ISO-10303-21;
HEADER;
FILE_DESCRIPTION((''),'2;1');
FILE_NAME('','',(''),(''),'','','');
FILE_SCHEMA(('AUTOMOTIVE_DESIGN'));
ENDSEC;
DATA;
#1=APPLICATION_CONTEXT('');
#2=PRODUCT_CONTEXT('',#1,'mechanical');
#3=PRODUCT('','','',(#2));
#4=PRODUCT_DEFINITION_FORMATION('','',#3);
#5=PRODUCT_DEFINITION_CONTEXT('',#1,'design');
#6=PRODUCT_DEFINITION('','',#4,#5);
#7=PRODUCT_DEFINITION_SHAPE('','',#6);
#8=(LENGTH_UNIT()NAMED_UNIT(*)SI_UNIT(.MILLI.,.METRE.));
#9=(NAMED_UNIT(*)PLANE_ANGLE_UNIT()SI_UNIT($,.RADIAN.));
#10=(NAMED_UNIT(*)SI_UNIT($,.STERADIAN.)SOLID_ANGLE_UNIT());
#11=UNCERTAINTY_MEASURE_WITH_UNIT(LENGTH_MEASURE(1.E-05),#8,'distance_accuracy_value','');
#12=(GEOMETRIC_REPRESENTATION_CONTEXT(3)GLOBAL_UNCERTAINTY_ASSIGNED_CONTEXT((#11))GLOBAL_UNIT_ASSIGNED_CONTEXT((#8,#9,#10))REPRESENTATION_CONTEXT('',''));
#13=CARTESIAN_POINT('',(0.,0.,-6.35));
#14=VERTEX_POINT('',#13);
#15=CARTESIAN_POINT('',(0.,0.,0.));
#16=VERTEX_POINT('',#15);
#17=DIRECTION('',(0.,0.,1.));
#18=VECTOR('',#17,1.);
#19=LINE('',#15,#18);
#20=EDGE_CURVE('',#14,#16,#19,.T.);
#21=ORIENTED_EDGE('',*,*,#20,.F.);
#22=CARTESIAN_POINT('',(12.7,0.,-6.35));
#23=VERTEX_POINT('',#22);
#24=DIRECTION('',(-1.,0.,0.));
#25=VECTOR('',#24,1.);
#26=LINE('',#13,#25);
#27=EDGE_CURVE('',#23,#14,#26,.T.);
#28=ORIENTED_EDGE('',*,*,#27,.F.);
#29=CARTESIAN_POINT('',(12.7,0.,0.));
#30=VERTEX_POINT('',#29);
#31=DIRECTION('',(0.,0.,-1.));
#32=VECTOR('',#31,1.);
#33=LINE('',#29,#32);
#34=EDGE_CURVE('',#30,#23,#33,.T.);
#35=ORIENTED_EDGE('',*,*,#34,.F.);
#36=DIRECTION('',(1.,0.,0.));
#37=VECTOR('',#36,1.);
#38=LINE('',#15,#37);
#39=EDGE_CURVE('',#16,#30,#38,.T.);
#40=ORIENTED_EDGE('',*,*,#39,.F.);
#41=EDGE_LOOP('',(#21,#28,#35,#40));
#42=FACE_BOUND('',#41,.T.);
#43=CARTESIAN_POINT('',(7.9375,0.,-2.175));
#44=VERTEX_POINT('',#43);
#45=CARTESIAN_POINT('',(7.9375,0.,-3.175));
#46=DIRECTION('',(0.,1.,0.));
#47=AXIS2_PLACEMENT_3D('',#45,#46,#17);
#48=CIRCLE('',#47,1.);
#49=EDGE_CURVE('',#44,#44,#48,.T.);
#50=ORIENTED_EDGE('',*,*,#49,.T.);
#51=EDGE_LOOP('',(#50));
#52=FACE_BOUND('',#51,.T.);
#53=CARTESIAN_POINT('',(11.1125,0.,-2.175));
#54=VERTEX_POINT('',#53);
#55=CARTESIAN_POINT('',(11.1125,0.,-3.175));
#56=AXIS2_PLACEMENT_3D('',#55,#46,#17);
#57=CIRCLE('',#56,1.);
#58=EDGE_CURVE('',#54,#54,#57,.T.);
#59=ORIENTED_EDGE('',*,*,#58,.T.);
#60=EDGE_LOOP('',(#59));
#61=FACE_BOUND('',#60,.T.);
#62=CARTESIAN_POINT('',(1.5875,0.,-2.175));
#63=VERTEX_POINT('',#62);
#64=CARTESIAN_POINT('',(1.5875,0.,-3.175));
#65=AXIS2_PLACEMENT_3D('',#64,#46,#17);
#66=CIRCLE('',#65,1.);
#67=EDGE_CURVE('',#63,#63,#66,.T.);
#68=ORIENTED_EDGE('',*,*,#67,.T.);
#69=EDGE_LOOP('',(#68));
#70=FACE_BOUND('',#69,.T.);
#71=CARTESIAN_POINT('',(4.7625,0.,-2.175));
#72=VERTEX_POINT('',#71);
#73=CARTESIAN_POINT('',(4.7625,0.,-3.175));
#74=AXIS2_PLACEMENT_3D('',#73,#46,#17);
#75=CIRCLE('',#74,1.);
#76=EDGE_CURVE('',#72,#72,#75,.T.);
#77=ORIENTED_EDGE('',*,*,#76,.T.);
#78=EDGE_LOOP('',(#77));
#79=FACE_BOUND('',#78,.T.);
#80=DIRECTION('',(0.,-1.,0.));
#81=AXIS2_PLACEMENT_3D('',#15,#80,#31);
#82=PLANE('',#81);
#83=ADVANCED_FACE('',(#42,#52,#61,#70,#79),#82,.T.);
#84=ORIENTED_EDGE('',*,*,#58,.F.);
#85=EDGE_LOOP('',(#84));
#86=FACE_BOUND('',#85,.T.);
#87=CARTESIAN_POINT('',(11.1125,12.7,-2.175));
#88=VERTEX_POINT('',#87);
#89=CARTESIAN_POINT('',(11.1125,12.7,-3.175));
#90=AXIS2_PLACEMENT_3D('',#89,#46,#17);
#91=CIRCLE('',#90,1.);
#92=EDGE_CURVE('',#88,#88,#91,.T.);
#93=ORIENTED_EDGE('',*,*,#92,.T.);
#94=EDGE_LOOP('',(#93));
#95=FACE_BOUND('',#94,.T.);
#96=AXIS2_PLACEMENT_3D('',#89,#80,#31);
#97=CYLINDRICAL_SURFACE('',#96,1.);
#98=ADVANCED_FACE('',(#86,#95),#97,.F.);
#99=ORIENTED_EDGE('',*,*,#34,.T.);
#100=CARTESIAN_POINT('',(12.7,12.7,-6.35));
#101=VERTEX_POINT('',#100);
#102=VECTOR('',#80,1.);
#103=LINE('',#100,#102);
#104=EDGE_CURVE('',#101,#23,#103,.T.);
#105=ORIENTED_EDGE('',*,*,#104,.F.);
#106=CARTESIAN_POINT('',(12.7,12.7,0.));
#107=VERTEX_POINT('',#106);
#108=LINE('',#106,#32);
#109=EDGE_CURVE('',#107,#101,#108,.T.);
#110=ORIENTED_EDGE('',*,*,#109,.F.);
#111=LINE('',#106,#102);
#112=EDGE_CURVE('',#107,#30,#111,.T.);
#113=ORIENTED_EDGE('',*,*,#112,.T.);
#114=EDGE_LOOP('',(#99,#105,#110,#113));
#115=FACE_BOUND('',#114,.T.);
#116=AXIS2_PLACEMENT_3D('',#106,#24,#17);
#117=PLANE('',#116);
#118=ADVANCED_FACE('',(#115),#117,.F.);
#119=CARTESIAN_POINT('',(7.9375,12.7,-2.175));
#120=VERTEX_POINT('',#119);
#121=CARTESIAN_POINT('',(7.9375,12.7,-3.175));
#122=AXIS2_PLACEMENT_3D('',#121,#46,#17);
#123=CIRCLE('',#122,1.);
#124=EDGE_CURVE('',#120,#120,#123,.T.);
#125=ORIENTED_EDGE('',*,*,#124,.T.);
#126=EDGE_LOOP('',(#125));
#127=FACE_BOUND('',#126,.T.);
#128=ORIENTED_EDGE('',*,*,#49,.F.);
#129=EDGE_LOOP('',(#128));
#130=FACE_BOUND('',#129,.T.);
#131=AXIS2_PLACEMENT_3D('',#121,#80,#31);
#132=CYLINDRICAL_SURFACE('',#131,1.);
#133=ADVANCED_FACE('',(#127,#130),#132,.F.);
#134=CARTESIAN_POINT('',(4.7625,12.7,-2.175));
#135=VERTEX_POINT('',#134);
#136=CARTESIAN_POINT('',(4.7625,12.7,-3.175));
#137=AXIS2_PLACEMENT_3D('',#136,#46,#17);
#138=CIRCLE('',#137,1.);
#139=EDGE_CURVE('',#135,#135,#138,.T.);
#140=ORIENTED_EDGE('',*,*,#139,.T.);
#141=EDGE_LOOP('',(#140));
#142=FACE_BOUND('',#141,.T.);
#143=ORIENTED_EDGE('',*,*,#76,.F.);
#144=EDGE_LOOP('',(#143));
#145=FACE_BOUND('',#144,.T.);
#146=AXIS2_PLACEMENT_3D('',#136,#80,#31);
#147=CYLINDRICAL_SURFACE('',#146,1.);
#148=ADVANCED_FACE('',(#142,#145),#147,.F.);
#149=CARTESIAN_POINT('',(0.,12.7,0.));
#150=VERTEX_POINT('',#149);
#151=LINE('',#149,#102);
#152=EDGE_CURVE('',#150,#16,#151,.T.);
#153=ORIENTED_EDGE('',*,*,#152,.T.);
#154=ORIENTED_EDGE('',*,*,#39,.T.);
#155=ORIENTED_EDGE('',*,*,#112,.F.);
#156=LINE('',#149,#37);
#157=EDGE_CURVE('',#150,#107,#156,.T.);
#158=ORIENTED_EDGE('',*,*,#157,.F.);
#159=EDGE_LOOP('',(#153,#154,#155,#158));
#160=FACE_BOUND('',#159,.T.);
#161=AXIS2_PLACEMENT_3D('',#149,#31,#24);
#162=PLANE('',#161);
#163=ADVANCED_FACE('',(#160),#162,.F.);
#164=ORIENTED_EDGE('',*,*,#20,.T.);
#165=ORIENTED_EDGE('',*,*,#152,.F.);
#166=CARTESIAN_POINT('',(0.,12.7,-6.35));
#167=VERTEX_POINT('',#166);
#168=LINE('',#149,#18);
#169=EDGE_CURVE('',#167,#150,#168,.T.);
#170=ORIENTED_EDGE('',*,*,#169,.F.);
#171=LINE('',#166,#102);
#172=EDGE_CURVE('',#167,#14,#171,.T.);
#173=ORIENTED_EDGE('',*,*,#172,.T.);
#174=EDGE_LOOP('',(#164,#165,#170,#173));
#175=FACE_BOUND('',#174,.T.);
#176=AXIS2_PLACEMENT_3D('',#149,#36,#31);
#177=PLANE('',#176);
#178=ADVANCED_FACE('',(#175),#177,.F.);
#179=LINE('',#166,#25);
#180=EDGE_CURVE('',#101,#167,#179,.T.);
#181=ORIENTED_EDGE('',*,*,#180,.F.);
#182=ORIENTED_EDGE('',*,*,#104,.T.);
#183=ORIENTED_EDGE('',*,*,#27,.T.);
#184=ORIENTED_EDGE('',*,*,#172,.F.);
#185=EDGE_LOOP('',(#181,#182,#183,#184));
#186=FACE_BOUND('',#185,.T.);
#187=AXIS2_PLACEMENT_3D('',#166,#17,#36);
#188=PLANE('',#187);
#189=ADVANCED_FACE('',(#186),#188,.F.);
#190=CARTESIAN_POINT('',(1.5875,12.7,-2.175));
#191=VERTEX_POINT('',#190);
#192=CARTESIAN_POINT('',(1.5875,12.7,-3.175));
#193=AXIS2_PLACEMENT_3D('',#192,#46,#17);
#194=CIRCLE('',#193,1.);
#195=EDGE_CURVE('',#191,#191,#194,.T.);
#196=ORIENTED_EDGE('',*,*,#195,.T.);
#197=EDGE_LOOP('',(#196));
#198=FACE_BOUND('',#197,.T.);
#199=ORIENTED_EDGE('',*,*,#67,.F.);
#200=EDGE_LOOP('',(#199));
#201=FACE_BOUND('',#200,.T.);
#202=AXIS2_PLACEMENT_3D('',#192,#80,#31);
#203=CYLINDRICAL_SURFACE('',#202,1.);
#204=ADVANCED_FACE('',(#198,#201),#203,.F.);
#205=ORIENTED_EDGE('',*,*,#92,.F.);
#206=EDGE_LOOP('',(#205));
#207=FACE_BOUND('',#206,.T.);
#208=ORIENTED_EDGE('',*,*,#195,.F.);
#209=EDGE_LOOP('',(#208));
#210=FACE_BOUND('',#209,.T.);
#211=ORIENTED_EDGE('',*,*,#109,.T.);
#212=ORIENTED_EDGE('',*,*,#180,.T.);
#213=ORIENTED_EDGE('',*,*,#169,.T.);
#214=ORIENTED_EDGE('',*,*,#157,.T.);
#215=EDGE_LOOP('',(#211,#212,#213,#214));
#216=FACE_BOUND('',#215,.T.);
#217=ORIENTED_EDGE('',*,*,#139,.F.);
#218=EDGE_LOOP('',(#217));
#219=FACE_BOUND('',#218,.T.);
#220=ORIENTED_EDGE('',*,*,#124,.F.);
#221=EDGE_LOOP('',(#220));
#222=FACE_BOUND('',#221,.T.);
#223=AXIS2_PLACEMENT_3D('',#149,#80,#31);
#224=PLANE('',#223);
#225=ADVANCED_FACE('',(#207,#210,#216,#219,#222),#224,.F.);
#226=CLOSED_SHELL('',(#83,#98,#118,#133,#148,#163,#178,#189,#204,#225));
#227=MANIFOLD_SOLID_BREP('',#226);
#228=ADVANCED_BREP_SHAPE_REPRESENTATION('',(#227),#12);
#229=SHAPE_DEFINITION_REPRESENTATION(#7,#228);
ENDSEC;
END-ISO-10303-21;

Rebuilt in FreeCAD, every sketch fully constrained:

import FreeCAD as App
import Part
import Sketcher
Q = App.Units.Quantity

doc = App.newDocument("Part")
body = doc.addObject("PartDesign::Body", "Body")

sketch1 = doc.addObject("Sketcher::SketchObject", "Sketch")
body.addObject(sketch1)
sketch1.AttachmentSupport = (doc.XZ_Plane, [""])
sketch1.MapMode = "FlatFace"
sketch1.addGeometry([
    Part.LineSegment(App.Vector(0, -6.3, 0), App.Vector(0, 0, 0)),
    Part.LineSegment(App.Vector(0, 0, 0), App.Vector(12.7, 0, 0)),
    Part.LineSegment(App.Vector(12.7, 0, 0), App.Vector(12.7, -6.3, 0)),
    Part.LineSegment(App.Vector(12.7, -6.3, 0), App.Vector(0, -6.3, 0)),
    Part.Circle(App.Vector(1.6, -3.2, 0), App.Vector(0, 0, 1), 1),
    Part.Circle(App.Vector(4.8, -3.2, 0), App.Vector(0, 0, 1), 1),
    Part.Circle(App.Vector(7.9, -3.2, 0), App.Vector(0, 0, 1), 1),
    Part.Circle(App.Vector(11.1, -3.2, 0), App.Vector(0, 0, 1), 1),
], False)
sketch1.addConstraint([
    Sketcher.Constraint("Coincident", 0, 2, 1, 1),
    Sketcher.Constraint("Coincident", 1, 2, 2, 1),
    Sketcher.Constraint("Coincident", 2, 2, 3, 1),
    Sketcher.Constraint("Coincident", 3, 2, 0, 1),
    Sketcher.Constraint("Vertical", 0),
    Sketcher.Constraint("Horizontal", 1),
    Sketcher.Constraint("Vertical", 2),
    Sketcher.Constraint("Horizontal", 3),
    Sketcher.Constraint("Coincident", 0, 2, -1, 1),
    Sketcher.Constraint("Equal", 4, 5),
    Sketcher.Constraint("Equal", 5, 6),
    Sketcher.Constraint("Equal", 6, 7),
    Sketcher.Constraint("Horizontal", 4, 3, 5, 3),
    Sketcher.Constraint("Horizontal", 5, 3, 6, 3),
    Sketcher.Constraint("Horizontal", 6, 3, 7, 3),
    Sketcher.Constraint("DistanceX", 1, 1, 1, 2, Q("0.5 in")),
    Sketcher.Constraint("DistanceY", 0, 1, 0, 2, Q("0.25 in")),
    Sketcher.Constraint("Diameter", 4, Q("2 mm")),
    Sketcher.Constraint("DistanceX", 4, 3, 6, 3, Q("0.25 in")),
    Sketcher.Constraint("DistanceX", 5, 3, 7, 3, Q("0.25 in")),
    Sketcher.Constraint("DistanceX", -1, 1, 4, 3, Q("0.0625 in")),
    Sketcher.Constraint("DistanceY", 4, 3, -1, 1, Q("0.125 in")),
    Sketcher.Constraint("DistanceX", -1, 1, 5, 3, Q("0.1875 in")),
])
pad1 = doc.addObject("PartDesign::Pad", "Pad")
body.addObject(pad1)
pad1.Profile = sketch1
pad1.Length = Q("0.5 in")
pad1.Reversed = True

doc.recompute()
